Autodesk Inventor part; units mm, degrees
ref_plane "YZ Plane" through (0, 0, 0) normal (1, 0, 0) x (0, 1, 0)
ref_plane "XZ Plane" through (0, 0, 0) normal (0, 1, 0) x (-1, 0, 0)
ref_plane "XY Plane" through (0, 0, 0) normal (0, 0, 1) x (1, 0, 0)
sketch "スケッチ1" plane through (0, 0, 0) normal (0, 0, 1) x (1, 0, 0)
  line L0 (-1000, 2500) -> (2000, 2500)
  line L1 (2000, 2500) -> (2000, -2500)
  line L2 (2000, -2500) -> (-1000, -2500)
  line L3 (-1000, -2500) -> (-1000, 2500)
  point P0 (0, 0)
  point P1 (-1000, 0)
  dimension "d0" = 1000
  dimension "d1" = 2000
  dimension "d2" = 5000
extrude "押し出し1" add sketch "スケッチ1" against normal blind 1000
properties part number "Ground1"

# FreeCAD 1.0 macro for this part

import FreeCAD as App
import Part
import Sketcher

V = App.Vector

doc = App.newDocument("Part")
body = doc.addObject("PartDesign::Body", "Body")

# Sketch on XY plane
sketch1 = doc.addObject("Sketcher::SketchObject", "Sketch")
body.addObject(sketch1)
sketch1.AttachmentSupport = (doc.XY_Plane, [""])
sketch1.MapMode = "FlatFace"
sketch1.addGeometry([
    Part.LineSegment(V(2000, 2500, 0), V(-1000, 2500, 0)),
    Part.LineSegment(V(-1000, 2500, 0), V(-1000, -2500, 0)),
    Part.LineSegment(V(-1000, -2500, 0), V(2000, -2500, 0)),
    Part.LineSegment(V(2000, -2500, 0), V(2000, 2500, 0)),
], False)
sketch1.addConstraint([
    Sketcher.Constraint("Coincident", 0, 2, 1, 1),
    Sketcher.Constraint("Coincident", 1, 2, 2, 1),
    Sketcher.Constraint("Coincident", 2, 2, 3, 1),
    Sketcher.Constraint("Coincident", 3, 2, 0, 1),
    Sketcher.Constraint("Horizontal", 0),
    Sketcher.Constraint("Vertical", 1),
    Sketcher.Constraint("Horizontal", 2),
    Sketcher.Constraint("Vertical", 3),
    Sketcher.Constraint("DistanceY", 1, 2, 1, 1, 5000.0),
    Sketcher.Constraint("DistanceX", 0, 2, -1, 1, 1000.0),
    Sketcher.Constraint("DistanceX", -1, 1, 2, 2, 2000.0),
    Sketcher.Constraint("DistanceY", -1, 1, 0, 2, 2500.0),
])
pad1 = doc.addObject("PartDesign::Pad", "Pad")
body.addObject(pad1)
pad1.Profile = sketch1
pad1.Length = 1000
pad1.Reversed = True

doc.recompute()
